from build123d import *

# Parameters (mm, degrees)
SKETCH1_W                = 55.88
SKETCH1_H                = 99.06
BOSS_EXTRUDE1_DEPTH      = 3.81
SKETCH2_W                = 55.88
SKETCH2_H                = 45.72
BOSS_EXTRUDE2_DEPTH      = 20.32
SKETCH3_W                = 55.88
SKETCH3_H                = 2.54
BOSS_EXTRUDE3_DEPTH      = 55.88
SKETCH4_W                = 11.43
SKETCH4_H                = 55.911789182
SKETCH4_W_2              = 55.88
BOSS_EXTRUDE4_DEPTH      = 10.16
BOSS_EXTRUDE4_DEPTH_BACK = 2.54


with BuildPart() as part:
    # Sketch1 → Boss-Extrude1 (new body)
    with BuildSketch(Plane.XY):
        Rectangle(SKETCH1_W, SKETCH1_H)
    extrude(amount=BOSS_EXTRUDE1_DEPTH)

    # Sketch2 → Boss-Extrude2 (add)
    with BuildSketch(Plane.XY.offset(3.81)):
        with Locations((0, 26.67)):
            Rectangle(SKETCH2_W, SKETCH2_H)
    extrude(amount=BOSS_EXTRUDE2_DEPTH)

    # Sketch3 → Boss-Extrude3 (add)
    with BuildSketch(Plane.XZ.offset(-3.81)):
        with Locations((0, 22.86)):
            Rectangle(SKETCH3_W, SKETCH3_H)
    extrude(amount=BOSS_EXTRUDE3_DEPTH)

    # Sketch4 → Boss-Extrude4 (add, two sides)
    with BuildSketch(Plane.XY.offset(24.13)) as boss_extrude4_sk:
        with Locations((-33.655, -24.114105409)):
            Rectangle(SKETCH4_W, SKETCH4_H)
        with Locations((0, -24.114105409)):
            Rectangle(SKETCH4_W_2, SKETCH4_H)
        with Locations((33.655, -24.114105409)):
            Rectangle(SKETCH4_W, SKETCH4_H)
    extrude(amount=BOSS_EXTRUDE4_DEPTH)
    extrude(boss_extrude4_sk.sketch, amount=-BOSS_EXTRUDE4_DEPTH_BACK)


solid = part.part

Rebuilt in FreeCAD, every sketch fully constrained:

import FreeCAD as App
import Part
import Sketcher
from FreeCAD import Vector
Q = App.Units.Quantity

doc = App.newDocument("Part")
params = doc.addObject("Spreadsheet::Sheet", "Params")
for row, (alias, value) in enumerate([
    ("sketch1_width", "2.2 in"),
    ("sketch1_height", "3.9 in"),
    ("pad1_length", "0.15 in"),
    ("sketch2_width", "2.2 in"),
    ("sketch2_height", "1.8 in"),
    ("pad2_length", "0.8 in"),
    ("sketch3_width", "2.2 in"),
    ("sketch3_height", "0.1 in"),
    ("pad3_length", "2.2 in"),
    ("sketch4_width", "3.1 in"),
    ("pad4_length", "0.4 in"),
    ("pad4_length2", "0.1 in"),
], start=1):
    params.set(f"A{row}", alias)
    params.set(f"B{row}", "=" + value)
    params.setAlias(f"B{row}", alias)

body = doc.addObject("PartDesign::Body", "Body")

# Sketch on XY plane
sketch1 = body.newObject("Sketcher::SketchObject", "Sketch")
sketch1.AttachmentSupport = (doc.getObject("XY_Plane"), [""])
sketch1.MapMode = "FlatFace"
sketch1.addGeometry([
    Part.LineSegment(Vector(-28, 50, 0), Vector(-28, -50, 0)),
    Part.LineSegment(Vector(-28, -50, 0), Vector(28, -50, 0)),
    Part.LineSegment(Vector(28, -50, 0), Vector(28, 50, 0)),
    Part.LineSegment(Vector(28, 50, 0), Vector(-28, 50, 0)),
], False)
sketch1.addConstraint([
    Sketcher.Constraint("Coincident", 0, 2, 1, 1),
    Sketcher.Constraint("Coincident", 1, 2, 2, 1),
    Sketcher.Constraint("Coincident", 2, 2, 3, 1),
    Sketcher.Constraint("Coincident", 3, 2, 0, 1),
    Sketcher.Constraint("Vertical", 0),
    Sketcher.Constraint("Horizontal", 1),
    Sketcher.Constraint("Vertical", 2),
    Sketcher.Constraint("Horizontal", 3),
    Sketcher.Constraint("Symmetric", 0, 2, 2, 2, -1, 1),
    Sketcher.Constraint("DistanceX", 1, 1, 1, 2, Q("2.2 in")),
    Sketcher.Constraint("DistanceY", 0, 2, 0, 1, Q("3.9 in")),
])
sketch1.setExpression("Constraints[9]", "Params.sketch1_width")
sketch1.setExpression("Constraints[10]", "Params.sketch1_height")
pad1 = body.newObject("PartDesign::Pad", "Pad")
pad1.Profile = sketch1
pad1.setExpression("Length", "Params.pad1_length")

# Sketch on XY plane
sketch2 = body.newObject("Sketcher::SketchObject", "Sketch001")
sketch2.AttachmentSupport = (doc.getObject("XY_Plane"), [""])
sketch2.MapMode = "FlatFace"
sketch2.AttachmentOffset = App.Placement(Vector(0, 0, 0.15 * 25.4), App.Rotation())
sketch2.addGeometry([
    Part.LineSegment(Vector(-28, 50, 0), Vector(-28, 4, 0)),
    Part.LineSegment(Vector(-28, 4, 0), Vector(28, 4, 0)),
    Part.LineSegment(Vector(28, 4, 0), Vector(28, 50, 0)),
    Part.LineSegment(Vector(28, 50, 0), Vector(-28, 50, 0)),
], False)
sketch2.addConstraint([
    Sketcher.Constraint("Coincident", 0, 2, 1, 1),
    Sketcher.Constraint("Coincident", 1, 2, 2, 1),
    Sketcher.Constraint("Coincident", 2, 2, 3, 1),
    Sketcher.Constraint("Coincident", 3, 2, 0, 1),
    Sketcher.Constraint("Vertical", 0),
    Sketcher.Constraint("Horizontal", 1),
    Sketcher.Constraint("Vertical", 2),
    Sketcher.Constraint("Horizontal", 3),
    Sketcher.Constraint("DistanceX", 1, 1, 1, 2, Q("2.2 in")),
    Sketcher.Constraint("DistanceY", 0, 2, 0, 1, Q("1.8 in")),
    Sketcher.Constraint("DistanceX", 0, 2, -1, 1, Q("1.1 in")),
    Sketcher.Constraint("DistanceY", -1, 1, 0, 2, Q("0.15 in")),
])
sketch2.setExpression("Constraints[8]", "Params.sketch2_width")
sketch2.setExpression("Constraints[9]", "Params.sketch2_height")
pad2 = body.newObject("PartDesign::Pad", "Pad001")
pad2.Profile = sketch2
pad2.setExpression("Length", "Params.pad2_length")

# Sketch on XZ plane
sketch3 = body.newObject("Sketcher::SketchObject", "Sketch002")
sketch3.AttachmentSupport = (doc.getObject("XZ_Plane"), [""])
sketch3.MapMode = "FlatFace"
sketch3.AttachmentOffset = App.Placement(Vector(0, 0, -0.15 * 25.4), App.Rotation())
sketch3.addGeometry([
    Part.LineSegment(Vector(-27.9, 24.1, 0), Vector(-27.9, 21.6, 0)),
    Part.LineSegment(Vector(-27.9, 21.6, 0), Vector(27.9, 21.6, 0)),
    Part.LineSegment(Vector(27.9, 21.6, 0), Vector(27.9, 24.1, 0)),
    Part.LineSegment(Vector(27.9, 24.1, 0), Vector(-27.9, 24.1, 0)),
], False)
sketch3.addConstraint([
    Sketcher.Constraint("Coincident", 0, 2, 1, 1),
    Sketcher.Constraint("Coincident", 1, 2, 2, 1),
    Sketcher.Constraint("Coincident", 2, 2, 3, 1),
    Sketcher.Constraint("Coincident", 3, 2, 0, 1),
    Sketcher.Constraint("Vertical", 0),
    Sketcher.Constraint("Horizontal", 1),
    Sketcher.Constraint("Vertical", 2),
    Sketcher.Constraint("Horizontal", 3),
    Sketcher.Constraint("DistanceX", 1, 1, 1, 2, Q("2.2 in")),
    Sketcher.Constraint("DistanceY", 0, 2, 0, 1, Q("0.1 in")),
    Sketcher.Constraint("DistanceX", 0, 2, -1, 1, Q("1.1 in")),
    Sketcher.Constraint("DistanceY", -1, 1, 0, 2, Q("0.85 in")),
])
sketch3.setExpression("Constraints[8]", "Params.sketch3_width")
sketch3.setExpression("Constraints[9]", "Params.sketch3_height")
pad3 = body.newObject("PartDesign::Pad", "Pad002")
pad3.Profile = sketch3
pad3.setExpression("Length", "Params.pad3_length")

# Sketch on XY plane
sketch4 = body.newObject("Sketcher::SketchObject", "Sketch003")
sketch4.AttachmentSupport = (doc.getObject("XY_Plane"), [""])
sketch4.MapMode = "FlatFace"
sketch4.AttachmentOffset = App.Placement(Vector(0, 0, 0.95 * 25.4), App.Rotation())
sketch4.addGeometry([
    Part.LineSegment(Vector(-39, 4, 0), Vector(-39, -52, 0)),
    Part.LineSegment(Vector(-39, -52, 0), Vector(39, -52, 0)),
    Part.LineSegment(Vector(39, -52, 0), Vector(39, 4, 0)),
    Part.LineSegment(Vector(39, 4, 0), Vector(-39, 4, 0)),
], False)
sketch4.addConstraint([
    Sketcher.Constraint("Coincident", 0, 2, 1, 1),
    Sketcher.Constraint("Coincident", 1, 2, 2, 1),
    Sketcher.Constraint("Coincident", 2, 2, 3, 1),
    Sketcher.Constraint("Coincident", 3, 2, 0, 1),
    Sketcher.Constraint("Vertical", 0),
    Sketcher.Constraint("Horizontal", 1),
    Sketcher.Constraint("Vertical", 2),
    Sketcher.Constraint("Horizontal", 3),
    Sketcher.Constraint("DistanceX", 1, 1, 1, 2, Q("3.1 in")),
    Sketcher.Constraint("DistanceX", 0, 2, -1, 1, Q("1.55 in")),
    Sketcher.Constraint("DistanceY", 0, 2, -1, 1, Q("2.05 in")),
    Sketcher.Constraint("DistanceY", 0, 2, 0, 1, 55.911789),
])
sketch4.setExpression("Constraints[8]", "Params.sketch4_width")
pad4 = body.newObject("PartDesign::Pad", "Pad003")
pad4.Profile = sketch4
pad4.Type = "TwoLengths"
pad4.setExpression("Length", "Params.pad4_length")
pad4.setExpression("Length2", "Params.pad4_length2")

doc.recompute()
